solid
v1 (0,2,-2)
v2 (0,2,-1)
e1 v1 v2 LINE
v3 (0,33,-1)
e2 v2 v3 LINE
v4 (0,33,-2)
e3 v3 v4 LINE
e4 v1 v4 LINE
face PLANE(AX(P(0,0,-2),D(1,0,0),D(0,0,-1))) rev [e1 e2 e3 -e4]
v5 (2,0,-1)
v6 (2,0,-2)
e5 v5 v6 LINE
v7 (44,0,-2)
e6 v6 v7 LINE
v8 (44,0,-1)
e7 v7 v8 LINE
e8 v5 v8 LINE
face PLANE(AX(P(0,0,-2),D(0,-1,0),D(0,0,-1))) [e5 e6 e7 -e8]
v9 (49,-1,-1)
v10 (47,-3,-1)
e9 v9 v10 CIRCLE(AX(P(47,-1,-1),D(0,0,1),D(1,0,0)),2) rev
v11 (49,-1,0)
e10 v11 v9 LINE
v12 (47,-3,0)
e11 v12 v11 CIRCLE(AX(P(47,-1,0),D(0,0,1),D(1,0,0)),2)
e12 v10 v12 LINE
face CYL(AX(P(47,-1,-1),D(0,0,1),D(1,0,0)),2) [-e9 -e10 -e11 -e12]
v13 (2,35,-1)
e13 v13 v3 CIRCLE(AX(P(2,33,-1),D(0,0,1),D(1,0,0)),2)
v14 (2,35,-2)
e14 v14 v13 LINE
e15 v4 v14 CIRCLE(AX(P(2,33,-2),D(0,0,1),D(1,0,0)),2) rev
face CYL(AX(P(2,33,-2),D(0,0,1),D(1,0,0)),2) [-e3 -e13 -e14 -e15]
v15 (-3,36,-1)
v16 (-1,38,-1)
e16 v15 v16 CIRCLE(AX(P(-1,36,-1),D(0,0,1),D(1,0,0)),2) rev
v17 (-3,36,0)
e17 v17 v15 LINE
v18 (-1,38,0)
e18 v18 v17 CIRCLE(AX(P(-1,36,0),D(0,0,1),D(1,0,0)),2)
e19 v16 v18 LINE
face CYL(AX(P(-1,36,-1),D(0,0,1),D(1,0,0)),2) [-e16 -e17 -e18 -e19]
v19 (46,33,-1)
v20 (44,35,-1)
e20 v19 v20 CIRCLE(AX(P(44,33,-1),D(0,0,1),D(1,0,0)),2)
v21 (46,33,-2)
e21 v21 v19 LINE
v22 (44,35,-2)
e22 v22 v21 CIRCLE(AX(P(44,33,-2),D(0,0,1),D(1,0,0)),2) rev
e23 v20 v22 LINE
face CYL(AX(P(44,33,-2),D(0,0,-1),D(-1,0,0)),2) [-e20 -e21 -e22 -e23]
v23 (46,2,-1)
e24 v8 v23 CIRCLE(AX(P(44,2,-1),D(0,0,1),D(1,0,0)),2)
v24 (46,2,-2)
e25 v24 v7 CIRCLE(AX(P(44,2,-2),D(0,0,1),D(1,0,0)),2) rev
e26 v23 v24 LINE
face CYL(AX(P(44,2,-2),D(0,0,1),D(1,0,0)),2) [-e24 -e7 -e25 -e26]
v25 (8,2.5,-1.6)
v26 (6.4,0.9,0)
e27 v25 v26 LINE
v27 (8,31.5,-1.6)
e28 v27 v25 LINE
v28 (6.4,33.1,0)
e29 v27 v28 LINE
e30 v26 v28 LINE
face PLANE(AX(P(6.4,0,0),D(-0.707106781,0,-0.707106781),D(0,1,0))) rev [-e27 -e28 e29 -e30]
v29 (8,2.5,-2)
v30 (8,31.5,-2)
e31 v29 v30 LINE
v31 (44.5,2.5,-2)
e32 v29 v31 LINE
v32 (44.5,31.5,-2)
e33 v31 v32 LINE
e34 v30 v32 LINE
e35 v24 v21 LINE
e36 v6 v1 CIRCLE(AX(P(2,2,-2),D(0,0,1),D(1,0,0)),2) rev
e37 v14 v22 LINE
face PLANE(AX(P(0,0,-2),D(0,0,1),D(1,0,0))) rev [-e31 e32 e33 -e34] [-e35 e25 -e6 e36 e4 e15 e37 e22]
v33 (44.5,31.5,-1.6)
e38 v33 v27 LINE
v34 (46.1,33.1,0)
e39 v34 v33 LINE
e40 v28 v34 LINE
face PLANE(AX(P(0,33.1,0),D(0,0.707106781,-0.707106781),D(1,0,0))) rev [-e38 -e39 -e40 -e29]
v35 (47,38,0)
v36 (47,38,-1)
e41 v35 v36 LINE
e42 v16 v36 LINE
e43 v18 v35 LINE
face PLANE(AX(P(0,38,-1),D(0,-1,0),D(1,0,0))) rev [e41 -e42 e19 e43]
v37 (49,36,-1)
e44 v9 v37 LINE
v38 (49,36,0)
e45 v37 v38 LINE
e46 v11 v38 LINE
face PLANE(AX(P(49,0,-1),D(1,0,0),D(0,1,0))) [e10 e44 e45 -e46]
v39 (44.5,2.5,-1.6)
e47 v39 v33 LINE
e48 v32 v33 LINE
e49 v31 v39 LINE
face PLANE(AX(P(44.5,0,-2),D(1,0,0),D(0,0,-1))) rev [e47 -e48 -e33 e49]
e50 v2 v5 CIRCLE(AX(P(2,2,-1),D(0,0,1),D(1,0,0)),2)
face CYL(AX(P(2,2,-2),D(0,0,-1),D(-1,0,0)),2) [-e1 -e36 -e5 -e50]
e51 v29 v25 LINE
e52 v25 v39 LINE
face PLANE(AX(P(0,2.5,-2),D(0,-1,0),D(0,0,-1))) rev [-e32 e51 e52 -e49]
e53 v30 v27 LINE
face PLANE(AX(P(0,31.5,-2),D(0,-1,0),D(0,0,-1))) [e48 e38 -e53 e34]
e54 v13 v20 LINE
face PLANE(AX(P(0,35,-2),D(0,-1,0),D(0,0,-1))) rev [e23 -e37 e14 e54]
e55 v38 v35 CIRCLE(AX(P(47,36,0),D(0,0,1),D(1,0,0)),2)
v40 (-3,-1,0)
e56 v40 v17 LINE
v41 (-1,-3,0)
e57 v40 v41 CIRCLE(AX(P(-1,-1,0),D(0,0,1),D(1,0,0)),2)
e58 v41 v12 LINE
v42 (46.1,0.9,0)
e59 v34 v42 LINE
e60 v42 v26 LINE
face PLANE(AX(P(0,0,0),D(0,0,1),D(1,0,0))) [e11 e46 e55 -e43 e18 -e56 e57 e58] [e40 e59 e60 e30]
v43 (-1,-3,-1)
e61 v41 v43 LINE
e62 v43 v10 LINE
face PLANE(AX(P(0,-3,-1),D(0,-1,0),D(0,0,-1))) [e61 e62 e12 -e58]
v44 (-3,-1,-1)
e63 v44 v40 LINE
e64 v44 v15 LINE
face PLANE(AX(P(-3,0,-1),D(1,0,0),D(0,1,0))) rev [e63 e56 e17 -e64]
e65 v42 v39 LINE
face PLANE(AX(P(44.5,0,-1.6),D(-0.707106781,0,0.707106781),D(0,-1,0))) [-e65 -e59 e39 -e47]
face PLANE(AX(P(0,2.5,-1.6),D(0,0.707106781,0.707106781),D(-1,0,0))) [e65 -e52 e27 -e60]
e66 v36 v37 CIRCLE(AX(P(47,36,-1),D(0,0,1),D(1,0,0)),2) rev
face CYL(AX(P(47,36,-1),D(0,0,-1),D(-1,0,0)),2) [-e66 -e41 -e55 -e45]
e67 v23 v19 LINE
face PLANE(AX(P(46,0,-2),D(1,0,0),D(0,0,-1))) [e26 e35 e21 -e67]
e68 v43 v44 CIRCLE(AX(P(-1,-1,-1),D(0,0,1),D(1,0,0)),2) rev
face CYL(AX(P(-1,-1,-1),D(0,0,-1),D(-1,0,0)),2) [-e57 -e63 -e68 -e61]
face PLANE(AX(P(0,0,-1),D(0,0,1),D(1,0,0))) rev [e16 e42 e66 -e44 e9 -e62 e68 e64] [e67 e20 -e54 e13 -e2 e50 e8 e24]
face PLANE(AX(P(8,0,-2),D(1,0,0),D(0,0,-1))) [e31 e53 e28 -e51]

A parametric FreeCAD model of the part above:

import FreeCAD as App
import Part
import Sketcher
Q = App.Units.Quantity


def edges_at(feature, points):
    """Names of the edges that pass closest to the given points."""
    edges = feature.Shape.Edges
    near = lambda p: min(range(len(edges)), key=lambda i: edges[i].distToShape(Part.Vertex(*p))[0])
    return sorted({f"Edge{near(p) + 1}" for p in points})


def add_polygon(sketch, points):
    """Adds a closed chain of lines whose ends are joined by coincident constraints."""
    first, n = sketch.GeometryCount, len(points)
    for a, b in zip(points, points[1:] + points[:1]):
        sketch.addGeometry(Part.LineSegment(App.Vector(*a, 0), App.Vector(*b, 0)), False)
    for i in range(n):
        sketch.addConstraint(Sketcher.Constraint("Coincident", first + i, 2, first + (i + 1) % n, 1))

doc = App.newDocument("Part")
params = doc.addObject("Spreadsheet::Sheet", "Params")
for row, (alias, value) in enumerate([
    ("sketch1_width", "52 mm"),
    ("sketch1_width2", "46 mm"),
    ("sketch1_height", "41 mm"),
    ("sketch1_height2", "35 mm"),
    ("pad1_length", "1 mm"),
    ("sketch2_width", "46 mm"),
    ("sketch2_height", "35 mm"),
    ("sketch2_height2", "29 mm"),
    ("sketch2_width2", "36.5 mm"),
    ("pad2_length", "2 mm"),
    ("fillet_radius", "2 mm"),
    ("chamfer_size", "1.6 mm"),
], start=1):
    params.set(f"A{row}", alias)
    params.set(f"B{row}", "=" + value)
    params.setAlias(f"B{row}", alias)

body = doc.addObject("PartDesign::Body", "Body")

# Sketch on XY plane
sketch1 = body.newObject("Sketcher::SketchObject", "Sketch")
sketch1.AttachmentSupport = (doc.getObject("XY_Plane"), [""])
sketch1.MapMode = "FlatFace"
add_polygon(sketch1, [(-3, 38), (-3, -3), (49, -3), (49, 38)])  # lines 0-3
add_polygon(sketch1, [(46, 0), (0, 0), (0, 35), (46, 35)])  # lines 4-7
sketch1.addConstraint([
    Sketcher.Constraint("Vertical", 0),
    Sketcher.Constraint("Horizontal", 1),
    Sketcher.Constraint("Vertical", 2),
    Sketcher.Constraint("Horizontal", 3),
    Sketcher.Constraint("Horizontal", 4),
    Sketcher.Constraint("Vertical", 5),
    Sketcher.Constraint("Horizontal", 6),
    Sketcher.Constraint("Vertical", 7),
    Sketcher.Constraint("Coincident", 4, 2, -1, 1),
    Sketcher.Constraint("DistanceX", 1, 1, 1, 2, Q("52 mm")),
    Sketcher.Constraint("DistanceX", 4, 2, 4, 1, Q("46 mm")),
    Sketcher.Constraint("DistanceY", 0, 2, 0, 1, Q("41 mm")),
    Sketcher.Constraint("DistanceY", 5, 1, 5, 2, Q("35 mm")),
    Sketcher.Constraint("DistanceX", 0, 2, -1, 1, Q("3 mm")),
    Sketcher.Constraint("DistanceY", 0, 2, -1, 1, Q("3 mm")),
])
sketch1.setExpression("Constraints[17]", "Params.sketch1_width")
sketch1.setExpression("Constraints[18]", "Params.sketch1_width2")
sketch1.setExpression("Constraints[19]", "Params.sketch1_height")
sketch1.setExpression("Constraints[20]", "Params.sketch1_height2")
pad1 = body.newObject("PartDesign::Pad", "Pad")
pad1.Profile = sketch1
pad1.setExpression("Length", "Params.pad1_length")
pad1.Reversed = True

# Sketch on XY plane
sketch2 = body.newObject("Sketcher::SketchObject", "Sketch001")
sketch2.AttachmentSupport = (doc.getObject("XY_Plane"), [""])
sketch2.MapMode = "FlatFace"
add_polygon(sketch2, [(0, 35), (0, 0), (46, 0), (46, 35)])  # lines 0-3
add_polygon(sketch2, [(44, 2), (8, 2), (8, 32), (44, 32)])  # lines 4-7
sketch2.addConstraint([
    Sketcher.Constraint("Vertical", 0),
    Sketcher.Constraint("Horizontal", 1),
    Sketcher.Constraint("Vertical", 2),
    Sketcher.Constraint("Horizontal", 3),
    Sketcher.Constraint("Horizontal", 4),
    Sketcher.Constraint("Vertical", 5),
    Sketcher.Constraint("Horizontal", 6),
    Sketcher.Constraint("Vertical", 7),
    Sketcher.Constraint("Coincident", 0, 2, -1, 1),
    Sketcher.Constraint("DistanceX", 1, 1, 1, 2, Q("46 mm")),
    Sketcher.Constraint("DistanceY", 0, 2, 0, 1, Q("35 mm")),
    Sketcher.Constraint("DistanceY", 5, 1, 5, 2, Q("29 mm")),
    Sketcher.Constraint("DistanceX", 4, 2, 4, 1, Q("36.5 mm")),
    Sketcher.Constraint("DistanceX", -1, 1, 4, 2, Q("8 mm")),
    Sketcher.Constraint("DistanceY", -1, 1, 4, 2, Q("2.5 mm")),
])
sketch2.setExpression("Constraints[17]", "Params.sketch2_width")
sketch2.setExpression("Constraints[18]", "Params.sketch2_height")
sketch2.setExpression("Constraints[19]", "Params.sketch2_height2")
sketch2.setExpression("Constraints[20]", "Params.sketch2_width2")
pad2 = body.newObject("PartDesign::Pad", "Pad001")
pad2.Profile = sketch2
pad2.setExpression("Length", "Params.pad2_length")
pad2.Reversed = True
doc.recompute()

fillet = body.newObject("PartDesign::Fillet", "Fillet")
fillet.Base = (pad2, edges_at(pad2, [
    (-3, -3, -0.5),
    (-3, 38, -0.5),
    (49, 38, -0.5),
    (49, -3, -0.5),
    (46, 0, -1.5),
    (0, 0, -1.5),
    (0, 35, -1.5),
    (46, 35, -1.5),
]))
fillet.setExpression("Radius", "Params.fillet_radius")
doc.recompute()

chamfer = body.newObject("PartDesign::Chamfer", "Chamfer")
chamfer.Base = (fillet, edges_at(fillet, [
    (44.5, 17, 0),
    (26.25, 2.5, 0),
    (8, 17, 0),
    (26.25, 31.5, 0),
]))
chamfer.setExpression("Size", "Params.chamfer_size")

doc.recompute()
